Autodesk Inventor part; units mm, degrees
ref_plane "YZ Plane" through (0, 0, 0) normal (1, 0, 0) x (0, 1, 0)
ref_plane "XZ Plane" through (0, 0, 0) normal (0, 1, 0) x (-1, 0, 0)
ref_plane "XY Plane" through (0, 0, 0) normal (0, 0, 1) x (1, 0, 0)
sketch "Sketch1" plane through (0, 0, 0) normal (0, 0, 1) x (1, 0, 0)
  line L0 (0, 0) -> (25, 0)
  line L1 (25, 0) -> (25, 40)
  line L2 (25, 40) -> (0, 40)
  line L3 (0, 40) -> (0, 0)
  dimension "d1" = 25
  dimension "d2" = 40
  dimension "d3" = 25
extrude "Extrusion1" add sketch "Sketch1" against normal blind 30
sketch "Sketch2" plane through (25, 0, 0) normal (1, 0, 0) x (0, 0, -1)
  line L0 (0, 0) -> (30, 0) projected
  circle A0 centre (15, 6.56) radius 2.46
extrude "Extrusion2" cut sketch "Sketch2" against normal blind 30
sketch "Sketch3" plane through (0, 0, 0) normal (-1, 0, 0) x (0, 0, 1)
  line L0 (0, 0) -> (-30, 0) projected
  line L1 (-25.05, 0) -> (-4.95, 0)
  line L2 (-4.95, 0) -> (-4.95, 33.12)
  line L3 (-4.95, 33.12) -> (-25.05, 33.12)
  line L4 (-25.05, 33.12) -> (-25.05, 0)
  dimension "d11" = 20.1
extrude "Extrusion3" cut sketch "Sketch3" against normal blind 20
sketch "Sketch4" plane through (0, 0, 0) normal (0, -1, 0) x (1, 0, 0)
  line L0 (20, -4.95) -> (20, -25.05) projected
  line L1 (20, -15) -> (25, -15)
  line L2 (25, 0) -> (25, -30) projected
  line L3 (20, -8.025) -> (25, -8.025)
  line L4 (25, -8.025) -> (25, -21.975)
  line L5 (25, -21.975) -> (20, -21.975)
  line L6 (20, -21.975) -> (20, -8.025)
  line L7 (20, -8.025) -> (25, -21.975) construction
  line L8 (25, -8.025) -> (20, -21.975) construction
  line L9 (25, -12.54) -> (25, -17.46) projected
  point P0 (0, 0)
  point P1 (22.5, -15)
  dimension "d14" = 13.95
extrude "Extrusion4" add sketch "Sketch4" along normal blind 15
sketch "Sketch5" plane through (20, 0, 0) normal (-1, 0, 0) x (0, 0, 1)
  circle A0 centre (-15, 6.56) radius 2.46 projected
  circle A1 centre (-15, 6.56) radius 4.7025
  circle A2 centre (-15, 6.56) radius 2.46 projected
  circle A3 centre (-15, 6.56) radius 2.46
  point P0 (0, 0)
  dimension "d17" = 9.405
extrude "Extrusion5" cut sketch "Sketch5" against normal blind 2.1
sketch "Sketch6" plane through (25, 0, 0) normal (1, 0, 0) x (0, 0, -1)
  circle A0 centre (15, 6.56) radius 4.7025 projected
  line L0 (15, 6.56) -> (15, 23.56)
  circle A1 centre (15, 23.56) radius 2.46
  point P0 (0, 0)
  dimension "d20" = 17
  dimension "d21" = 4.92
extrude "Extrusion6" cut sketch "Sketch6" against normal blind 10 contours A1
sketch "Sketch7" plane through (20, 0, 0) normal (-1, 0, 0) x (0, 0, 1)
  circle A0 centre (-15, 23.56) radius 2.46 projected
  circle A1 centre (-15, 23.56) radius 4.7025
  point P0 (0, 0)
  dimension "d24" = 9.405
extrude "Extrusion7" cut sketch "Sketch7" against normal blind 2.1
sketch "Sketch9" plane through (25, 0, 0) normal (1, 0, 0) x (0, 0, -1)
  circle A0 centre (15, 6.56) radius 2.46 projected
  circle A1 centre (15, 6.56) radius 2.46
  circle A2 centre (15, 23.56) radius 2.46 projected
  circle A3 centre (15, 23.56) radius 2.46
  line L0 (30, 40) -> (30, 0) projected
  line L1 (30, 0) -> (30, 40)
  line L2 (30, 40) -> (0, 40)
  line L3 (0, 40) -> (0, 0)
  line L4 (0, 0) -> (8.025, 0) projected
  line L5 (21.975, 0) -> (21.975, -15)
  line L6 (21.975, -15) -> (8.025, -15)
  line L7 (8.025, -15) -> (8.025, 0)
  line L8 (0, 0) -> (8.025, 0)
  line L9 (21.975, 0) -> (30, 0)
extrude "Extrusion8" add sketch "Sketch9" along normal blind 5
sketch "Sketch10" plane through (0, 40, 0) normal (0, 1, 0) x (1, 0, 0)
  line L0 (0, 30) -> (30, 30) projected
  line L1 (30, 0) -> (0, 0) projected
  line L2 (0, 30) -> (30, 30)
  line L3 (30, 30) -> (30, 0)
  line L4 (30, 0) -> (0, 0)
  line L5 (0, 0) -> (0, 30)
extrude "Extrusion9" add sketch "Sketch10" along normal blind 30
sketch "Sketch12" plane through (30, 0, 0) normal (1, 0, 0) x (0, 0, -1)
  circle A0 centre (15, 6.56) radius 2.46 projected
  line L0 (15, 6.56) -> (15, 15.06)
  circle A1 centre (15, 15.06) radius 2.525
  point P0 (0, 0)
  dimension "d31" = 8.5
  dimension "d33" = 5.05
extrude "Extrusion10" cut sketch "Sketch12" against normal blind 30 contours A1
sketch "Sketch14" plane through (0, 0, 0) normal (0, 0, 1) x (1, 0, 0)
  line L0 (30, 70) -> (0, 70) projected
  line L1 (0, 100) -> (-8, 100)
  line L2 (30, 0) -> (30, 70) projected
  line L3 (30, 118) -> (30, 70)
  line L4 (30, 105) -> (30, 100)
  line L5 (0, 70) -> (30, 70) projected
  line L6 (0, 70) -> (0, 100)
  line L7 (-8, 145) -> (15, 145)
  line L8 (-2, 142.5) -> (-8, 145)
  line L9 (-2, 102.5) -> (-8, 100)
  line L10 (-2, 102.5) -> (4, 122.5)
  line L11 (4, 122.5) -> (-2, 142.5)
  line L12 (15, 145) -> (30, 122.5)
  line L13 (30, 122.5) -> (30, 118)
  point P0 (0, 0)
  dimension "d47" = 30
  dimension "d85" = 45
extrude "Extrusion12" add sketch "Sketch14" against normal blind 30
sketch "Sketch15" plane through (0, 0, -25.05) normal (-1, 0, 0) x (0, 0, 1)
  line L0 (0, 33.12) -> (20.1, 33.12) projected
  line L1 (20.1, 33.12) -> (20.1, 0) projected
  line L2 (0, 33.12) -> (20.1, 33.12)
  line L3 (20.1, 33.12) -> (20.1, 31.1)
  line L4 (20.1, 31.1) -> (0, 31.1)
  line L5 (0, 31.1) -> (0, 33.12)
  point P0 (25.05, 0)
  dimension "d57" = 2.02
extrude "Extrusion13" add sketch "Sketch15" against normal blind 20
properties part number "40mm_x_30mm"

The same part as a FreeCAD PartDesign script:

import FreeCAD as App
import Part
import Sketcher
Q = App.Units.Quantity


def add_polygon(sketch, points):
    """Adds a closed chain of lines whose ends are joined by coincident constraints."""
    first, n = sketch.GeometryCount, len(points)
    for a, b in zip(points, points[1:] + points[:1]):
        sketch.addGeometry(Part.LineSegment(App.Vector(*a, 0), App.Vector(*b, 0)), False)
    for i in range(n):
        sketch.addConstraint(Sketcher.Constraint("Coincident", first + i, 2, first + (i + 1) % n, 1))

doc = App.newDocument("Part")
body = doc.addObject("PartDesign::Body", "Body")

# Sketch on XY plane
sketch1 = doc.addObject("Sketcher::SketchObject", "Sketch")
body.addObject(sketch1)
sketch1.AttachmentSupport = (doc.XY_Plane, [""])
sketch1.MapMode = "FlatFace"
add_polygon(sketch1, [(0, 40), (0, 0), (25, 0), (25, 40)])  # lines 0-3
sketch1.addConstraint(Sketcher.Constraint("Vertical", 0))
sketch1.addConstraint(Sketcher.Constraint("Horizontal", 1))
sketch1.addConstraint(Sketcher.Constraint("Vertical", 2))
sketch1.addConstraint(Sketcher.Constraint("Horizontal", 3))
sketch1.addConstraint(Sketcher.Constraint("Coincident", 0, 2, -1, 1))
sketch1.addConstraint(Sketcher.Constraint("DistanceX", 1, 1, 1, 2, 25.0))
sketch1.addConstraint(Sketcher.Constraint("DistanceY", 0, 2, 0, 1, 40.0))
pad1 = doc.addObject("PartDesign::Pad", "Pad")
body.addObject(pad1)
pad1.Profile = sketch1
pad1.Length = 30
pad1.Reversed = True

# Sketch on YZ plane
sketch2 = doc.addObject("Sketcher::SketchObject", "Sketch001")
body.addObject(sketch2)
sketch2.AttachmentSupport = (doc.YZ_Plane, [""])
sketch2.MapMode = "FlatFace"
sketch2.AttachmentOffset = App.Placement(App.Vector(0, 0, 25), App.Rotation())
sketch2.addGeometry(Part.Circle(App.Vector(6.6, -15, 0), App.Vector(0, 0, 1), 2.5), False)
sketch2.addConstraint(Sketcher.Constraint("Diameter", 0, 4.92))
sketch2.addConstraint(Sketcher.Constraint("DistanceY", 0, 3, -1, 1, 15.0))
sketch2.addConstraint(Sketcher.Constraint("DistanceX", -1, 1, 0, 3, 6.56))
pocket1 = doc.addObject("PartDesign::Pocket", "Pocket")
body.addObject(pocket1)
pocket1.Profile = sketch2
pocket1.Length = 30

# Sketch on YZ plane
sketch3 = doc.addObject("Sketcher::SketchObject", "Sketch002")
body.addObject(sketch3)
sketch3.AttachmentSupport = (doc.YZ_Plane, [""])
sketch3.MapMode = "FlatFace"
add_polygon(sketch3, [(0, -25), (0, -5), (33, -5), (33, -25)])  # lines 0-3
sketch3.addConstraint(Sketcher.Constraint("Vertical", 0))
sketch3.addConstraint(Sketcher.Constraint("Horizontal", 1))
sketch3.addConstraint(Sketcher.Constraint("Vertical", 2))
sketch3.addConstraint(Sketcher.Constraint("Horizontal", 3))
sketch3.addConstraint(Sketcher.Constraint("PointOnObject", 0, 2, -2))
sketch3.addConstraint(Sketcher.Constraint("DistanceY", 0, 1, 0, 2, 20.1))
sketch3.addConstraint(Sketcher.Constraint("DistanceX", 1, 1, 1, 2, 33.12))
sketch3.addConstraint(Sketcher.Constraint("DistanceY", 0, 2, -1, 1, 4.95))
pocket2 = doc.addObject("PartDesign::Pocket", "Pocket001")
body.addObject(pocket2)
pocket2.Profile = sketch3
pocket2.Length = 20
pocket2.Reversed = True

# Sketch on XZ plane
sketch4 = doc.addObject("Sketcher::SketchObject", "Sketch003")
body.addObject(sketch4)
sketch4.AttachmentSupport = (doc.XZ_Plane, [""])
sketch4.MapMode = "FlatFace"
add_polygon(sketch4, [(25, -8), (20, -8), (20, -22), (25, -22)])  # lines 0-3
sketch4.addConstraint(Sketcher.Constraint("Horizontal", 0))
sketch4.addConstraint(Sketcher.Constraint("Vertical", 1))
sketch4.addConstraint(Sketcher.Constraint("Horizontal", 2))
sketch4.addConstraint(Sketcher.Constraint("Vertical", 3))
sketch4.addConstraint(Sketcher.Constraint("DistanceY", 1, 2, 1, 1, 13.95))
sketch4.addConstraint(Sketcher.Constraint("DistanceX", 0, 2, 0, 1, 5.0))
sketch4.addConstraint(Sketcher.Constraint("DistanceX", -1, 1, 0, 2, 20.0))
sketch4.addConstraint(Sketcher.Constraint("DistanceY", 0, 2, -1, 1, 8.025))
pad2 = doc.addObject("PartDesign::Pad", "Pad001")
body.addObject(pad2)
pad2.Profile = sketch4
pad2.Length = 15

# Sketch on YZ plane
sketch5 = doc.addObject("Sketcher::SketchObject", "Sketch004")
body.addObject(sketch5)
sketch5.AttachmentSupport = (doc.YZ_Plane, [""])
sketch5.MapMode = "FlatFace"
sketch5.AttachmentOffset = App.Placement(App.Vector(0, 0, 20), App.Rotation())
sketch5.addGeometry(Part.Circle(App.Vector(6.6, -15, 0), App.Vector(0, 0, 1), 4.7), False)
sketch5.addGeometry(Part.Circle(App.Vector(6.6, -15, 0), App.Vector(0, 0, 1), 2.5), False)
sketch5.addConstraint(Sketcher.Constraint("Coincident", 1, 3, 0, 3))
sketch5.addConstraint(Sketcher.Constraint("Diameter", 0, 9.405))
sketch5.addConstraint(Sketcher.Constraint("Diameter", 1, 4.92))
sketch5.addConstraint(Sketcher.Constraint("DistanceY", 0, 3, -1, 1, 15.0))
sketch5.addConstraint(Sketcher.Constraint("DistanceX", -1, 1, 0, 3, 6.56))
pocket3 = doc.addObject("PartDesign::Pocket", "Pocket002")
body.addObject(pocket3)
pocket3.Profile = sketch5
pocket3.Length = 2.1
pocket3.Reversed = True

# Sketch on YZ plane
sketch6 = doc.addObject("Sketcher::SketchObject", "Sketch005")
body.addObject(sketch6)
sketch6.AttachmentSupport = (doc.YZ_Plane, [""])
sketch6.MapMode = "FlatFace"
sketch6.AttachmentOffset = App.Placement(App.Vector(0, 0, 25), App.Rotation())
sketch6.addGeometry(Part.Circle(App.Vector(23.6, -15, 0), App.Vector(0, 0, 1), 2.5), False)
sketch6.addConstraint(Sketcher.Constraint("Diameter", 0, 4.92))
sketch6.addConstraint(Sketcher.Constraint("DistanceY", 0, 3, -1, 1, 15.0))
sketch6.addConstraint(Sketcher.Constraint("DistanceX", -1, 1, 0, 3, 23.56))
pocket4 = doc.addObject("PartDesign::Pocket", "Pocket003")
body.addObject(pocket4)
pocket4.Profile = sketch6
pocket4.Length = 10

# Sketch on YZ plane
sketch7 = doc.addObject("Sketcher::SketchObject", "Sketch006")
body.addObject(sketch7)
sketch7.AttachmentSupport = (doc.YZ_Plane, [""])
sketch7.MapMode = "FlatFace"
sketch7.AttachmentOffset = App.Placement(App.Vector(0, 0, 20), App.Rotation())
sketch7.addGeometry(Part.Circle(App.Vector(23.6, -15, 0), App.Vector(0, 0, 1), 4.7), False)
sketch7.addGeometry(Part.Circle(App.Vector(23.6, -15, 0), App.Vector(0, 0, 1), 2.5), False)
sketch7.addConstraint(Sketcher.Constraint("Coincident", 1, 3, 0, 3))
sketch7.addConstraint(Sketcher.Constraint("Diameter", 0, 9.405))
sketch7.addConstraint(Sketcher.Constraint("Diameter", 1, 4.92))
sketch7.addConstraint(Sketcher.Constraint("DistanceY", 0, 3, -1, 1, 15.0))
sketch7.addConstraint(Sketcher.Constraint("DistanceX", -1, 1, 0, 3, 23.56))
pocket5 = doc.addObject("PartDesign::Pocket", "Pocket004")
body.addObject(pocket5)
pocket5.Profile = sketch7
pocket5.Length = 2.1
pocket5.Reversed = True

# Sketch on YZ plane
sketch8 = doc.addObject("Sketcher::SketchObject", "Sketch007")
body.addObject(sketch8)
sketch8.AttachmentSupport = (doc.YZ_Plane, [""])
sketch8.MapMode = "FlatFace"
sketch8.AttachmentOffset = App.Placement(App.Vector(0, 0, 25), App.Rotation())
add_polygon(sketch8, [(0, -30), (40, -30), (40, 0), (0, 0), (0, -8), (-15, -8), (-15, -22), (0, -22)])  # lines 0-7
sketch8.addGeometry(Part.Circle(App.Vector(6.6, -15, 0), App.Vector(0, 0, 1), 2.5), False)  # 8
sketch8.addGeometry(Part.Circle(App.Vector(23.6, -15, 0), App.Vector(0, 0, 1), 2.5), False)  # 9
sketch8.addConstraint(Sketcher.Constraint("Horizontal", 0))
sketch8.addConstraint(Sketcher.Constraint("Vertical", 1))
sketch8.addConstraint(Sketcher.Constraint("Horizontal", 2))
sketch8.addConstraint(Sketcher.Constraint("Vertical", 3))
sketch8.addConstraint(Sketcher.Constraint("Horizontal", 4))
sketch8.addConstraint(Sketcher.Constraint("Vertical", 5))
sketch8.addConstraint(Sketcher.Constraint("Horizontal", 6))
sketch8.addConstraint(Sketcher.Constraint("Vertical", 7))
sketch8.addConstraint(Sketcher.Constraint("Coincident", 2, 2, -1, 1))
sketch8.addConstraint(Sketcher.Constraint("Equal", 8, 9))
sketch8.addConstraint(Sketcher.Constraint("PointOnObject", 6, 2, -2))
sketch8.addConstraint(Sketcher.Constraint("Horizontal", 8, 3, 9, 3))
sketch8.addConstraint(Sketcher.Constraint("Equal", 3, 7))
sketch8.addConstraint(Sketcher.Constraint("Diameter", 8, 4.92))
sketch8.addConstraint(Sketcher.Constraint("DistanceX", 0, 1, 0, 2, 40.0))
sketch8.addConstraint(Sketcher.Constraint("DistanceX", 4, 2, 4, 1, 15.0))
sketch8.addConstraint(Sketcher.Constraint("DistanceY", 1, 1, 1, 2, 30.0))
sketch8.addConstraint(Sketcher.Constraint("DistanceY", 8, 3, -1, 1, 15.0))
sketch8.addConstraint(Sketcher.Constraint("DistanceX", 8, 3, 9, 3, 17.0))
sketch8.addConstraint(Sketcher.Constraint("DistanceY", 5, 2, 5, 1, 13.95))
sketch8.addConstraint(Sketcher.Constraint("DistanceX", -1, 1, 8, 3, 6.56))
pad3 = doc.addObject("PartDesign::Pad", "Pad002")
body.addObject(pad3)
pad3.Profile = sketch8
pad3.Length = 5

# Sketch on XZ plane
sketch9 = doc.addObject("Sketcher::SketchObject", "Sketch008")
body.addObject(sketch9)
sketch9.AttachmentSupport = (doc.XZ_Plane, [""])
sketch9.MapMode = "FlatFace"
sketch9.AttachmentOffset = App.Placement(App.Vector(0, 0, -40), App.Rotation())
add_polygon(sketch9, [(30, -30), (0, -30), (0, 0), (30, 0)])  # lines 0-3
sketch9.addConstraint(Sketcher.Constraint("Horizontal", 0))
sketch9.addConstraint(Sketcher.Constraint("Vertical", 1))
sketch9.addConstraint(Sketcher.Constraint("Horizontal", 2))
sketch9.addConstraint(Sketcher.Constraint("Vertical", 3))
sketch9.addConstraint(Sketcher.Constraint("Coincident", 1, 2, -1, 1))
sketch9.addConstraint(Sketcher.Constraint("Equal", 2, 1))
sketch9.addConstraint(Sketcher.Constraint("DistanceX", 0, 2, 0, 1, 30.0))
pad4 = doc.addObject("PartDesign::Pad", "Pad003")
body.addObject(pad4)
pad4.Profile = sketch9
pad4.Length = 30
pad4.Reversed = True

# Sketch on YZ plane
sketch10 = doc.addObject("Sketcher::SketchObject", "Sketch009")
body.addObject(sketch10)
sketch10.AttachmentSupport = (doc.YZ_Plane, [""])
sketch10.MapMode = "FlatFace"
sketch10.AttachmentOffset = App.Placement(App.Vector(0, 0, 30), App.Rotation())
sketch10.addGeometry(Part.Circle(App.Vector(15.1, -15, 0), App.Vector(0, 0, 1), 2.5), False)
sketch10.addConstraint(Sketcher.Constraint("Diameter", 0, 5.05))
sketch10.addConstraint(Sketcher.Constraint("DistanceY", 0, 3, -1, 1, 15.0))
sketch10.addConstraint(Sketcher.Constraint("DistanceX", -1, 1, 0, 3, 15.06))
pocket6 = doc.addObject("PartDesign::Pocket", "Pocket005")
body.addObject(pocket6)
pocket6.Profile = sketch10
pocket6.Length = 30

# Sketch on XY plane
sketch11 = doc.addObject("Sketcher::SketchObject", "Sketch010")
body.addObject(sketch11)
sketch11.AttachmentSupport = (doc.XY_Plane, [""])
sketch11.MapMode = "FlatFace"
add_polygon(sketch11, [(0, 70), (30, 70), (30, 122), (15, 145), (-8, 145), (-2, 142), (4, 122), (-2, 102), (-8, 100), (0, 100)])  # lines 0-9
sketch11.addConstraint(Sketcher.Constraint("Horizontal", 0))
sketch11.addConstraint(Sketcher.Constraint("Vertical", 1))
sketch11.addConstraint(Sketcher.Constraint("Horizontal", 3))
sketch11.addConstraint(Sketcher.Constraint("Horizontal", 8))
sketch11.addConstraint(Sketcher.Constraint("Vertical", 9))
sketch11.addConstraint(Sketcher.Constraint("PointOnObject", 8, 2, -2))
sketch11.addConstraint(Sketcher.Constraint("Horizontal", 1, 2, 5, 2))
sketch11.addConstraint(Sketcher.Constraint("Vertical", 4, 2, 6, 2))
sketch11.addConstraint(Sketcher.Constraint("Vertical", 3, 2, 7, 2))
sketch11.addConstraint(Sketcher.Constraint("Equal", 0, 9))
sketch11.addConstraint(Sketcher.Constraint("Equal", 5, 6))
sketch11.addConstraint(Sketcher.Constraint("Equal", 4, 7))
sketch11.addConstraint(Sketcher.Constraint("DistanceX", 0, 1, 0, 2, 30.0))
sketch11.addConstraint(Sketcher.Constraint("DistanceY", 7, 2, 3, 2, 45.0))
sketch11.addConstraint(Sketcher.Constraint("DistanceX", 3, 2, 3, 1, 23.0))
sketch11.addConstraint(Sketcher.Constraint("DistanceX", 8, 1, 8, 2, 8.0))
sketch11.addConstraint(Sketcher.Constraint("DistanceY", -1, 1, 0, 2, 70.0))
sketch11.addConstraint(Sketcher.Constraint("DistanceX", 4, 2, -1, 1, 2.0))
sketch11.addConstraint(Sketcher.Constraint("DistanceX", -1, 1, 5, 2, 4.0))
sketch11.addConstraint(Sketcher.Constraint("Angle", 5, Q("-73.3008 deg")))
pad5 = doc.addObject("PartDesign::Pad", "Pad004")
body.addObject(pad5)
pad5.Profile = sketch11
pad5.Length = 30
pad5.Reversed = True

# Sketch on YZ plane
sketch12 = doc.addObject("Sketcher::SketchObject", "Sketch011")
body.addObject(sketch12)
sketch12.AttachmentSupport = (doc.YZ_Plane, [""])
sketch12.MapMode = "FlatFace"
add_polygon(sketch12, [(33.1, -5), (33.1, -25.1), (31.1, -25.1), (31.1, -5)])  # lines 0-3
sketch12.addConstraint(Sketcher.Constraint("Vertical", 0))
sketch12.addConstraint(Sketcher.Constraint("Horizontal", 1))
sketch12.addConstraint(Sketcher.Constraint("Vertical", 2))
sketch12.addConstraint(Sketcher.Constraint("Horizontal", 3))
sketch12.addConstraint(Sketcher.Constraint("DistanceX", 1, 2, 1, 1, 2.02))
sketch12.addConstraint(Sketcher.Constraint("DistanceY", 0, 2, 0, 1, 20.1))
sketch12.addConstraint(Sketcher.Constraint("DistanceX", -1, 1, 1, 2, 31.1))
sketch12.addConstraint(Sketcher.Constraint("DistanceY", 0, 2, -1, 1, 25.05))
pad6 = doc.addObject("PartDesign::Pad", "Pad005")
body.addObject(pad6)
pad6.Profile = sketch12
pad6.Length = 20

doc.recompute()
